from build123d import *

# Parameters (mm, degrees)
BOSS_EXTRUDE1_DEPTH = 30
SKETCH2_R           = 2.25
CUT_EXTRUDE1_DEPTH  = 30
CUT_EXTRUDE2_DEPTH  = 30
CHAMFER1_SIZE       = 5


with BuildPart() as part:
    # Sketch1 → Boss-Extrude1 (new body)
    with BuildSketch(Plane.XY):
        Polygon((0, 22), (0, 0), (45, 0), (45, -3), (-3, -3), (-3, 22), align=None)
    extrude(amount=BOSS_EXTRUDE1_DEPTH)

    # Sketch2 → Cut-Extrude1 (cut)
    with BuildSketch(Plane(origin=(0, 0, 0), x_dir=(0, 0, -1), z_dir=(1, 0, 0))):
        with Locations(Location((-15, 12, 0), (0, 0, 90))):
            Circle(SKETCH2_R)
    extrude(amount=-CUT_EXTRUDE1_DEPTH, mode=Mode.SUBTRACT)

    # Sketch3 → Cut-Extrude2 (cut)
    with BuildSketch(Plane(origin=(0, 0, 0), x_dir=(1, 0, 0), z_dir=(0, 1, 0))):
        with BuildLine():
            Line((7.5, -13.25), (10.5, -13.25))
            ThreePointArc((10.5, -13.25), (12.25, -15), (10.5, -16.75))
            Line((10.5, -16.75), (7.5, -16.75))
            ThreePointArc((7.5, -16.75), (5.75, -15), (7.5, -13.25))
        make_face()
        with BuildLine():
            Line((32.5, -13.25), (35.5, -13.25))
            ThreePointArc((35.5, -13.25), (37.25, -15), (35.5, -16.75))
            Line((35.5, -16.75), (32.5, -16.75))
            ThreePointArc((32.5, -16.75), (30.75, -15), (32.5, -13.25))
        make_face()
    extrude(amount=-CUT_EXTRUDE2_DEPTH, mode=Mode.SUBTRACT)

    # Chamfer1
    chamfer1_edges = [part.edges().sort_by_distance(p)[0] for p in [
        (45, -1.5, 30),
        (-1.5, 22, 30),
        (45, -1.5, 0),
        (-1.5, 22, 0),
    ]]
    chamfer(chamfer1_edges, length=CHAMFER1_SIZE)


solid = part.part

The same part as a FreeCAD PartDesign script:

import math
import FreeCAD as App
import Part
import Sketcher


def edges_at(feature, points):
    """Names of the edges that pass closest to the given points."""
    edges = feature.Shape.Edges
    near = lambda p: min(range(len(edges)), key=lambda i: edges[i].distToShape(Part.Vertex(*p))[0])
    return sorted({f"Edge{near(p) + 1}" for p in points})


def add_polygon(sketch, points):
    """Adds a closed chain of lines whose ends are joined by coincident constraints."""
    first, n = sketch.GeometryCount, len(points)
    for a, b in zip(points, points[1:] + points[:1]):
        sketch.addGeometry(Part.LineSegment(App.Vector(*a, 0), App.Vector(*b, 0)), False)
    for i in range(n):
        sketch.addConstraint(Sketcher.Constraint("Coincident", first + i, 2, first + (i + 1) % n, 1))

doc = App.newDocument("Part")
params = doc.addObject("Spreadsheet::Sheet", "Params")
for row, (alias, value) in enumerate([
    ("sketch1_width", "3 mm"),
    ("sketch1_width2", "48 mm"),
    ("sketch1_height", "22 mm"),
    ("pad1_length", "30 mm"),
    ("sketch2_diameter", "4.5 mm"),
    ("pocket1_length", "30 mm"),
    ("sketch3_width", "3 mm"),
    ("sketch3_radius", "1.75 mm"),
    ("pocket2_length", "30 mm"),
    ("chamfer_size", "5 mm"),
], start=1):
    params.set(f"A{row}", alias)
    params.set(f"B{row}", "=" + value)
    params.setAlias(f"B{row}", alias)

body = doc.addObject("PartDesign::Body", "Body")

sketch1 = body.newObject("Sketcher::SketchObject", "Sketch")
sketch1.AttachmentSupport = (doc.getObject("XY_Plane"), [""])
sketch1.MapMode = "FlatFace"
add_polygon(sketch1, [(0, 0), (0, 22), (-3, 22), (-3, -3), (45, -3), (45, 0)])
sketch1.addConstraint([
    Sketcher.Constraint("Vertical", 0),
    Sketcher.Constraint("Horizontal", 1),
    Sketcher.Constraint("Vertical", 2),
    Sketcher.Constraint("Horizontal", 3),
    Sketcher.Constraint("Vertical", 4),
    Sketcher.Constraint("Horizontal", 5),
    Sketcher.Constraint("Coincident", 5, 2, -1, 1),
    Sketcher.Constraint("Equal", 1, 4),
    Sketcher.Constraint("DistanceX", 1, 2, 1, 1, 3.0),
    Sketcher.Constraint("DistanceX", 3, 1, 3, 2, 48.0),
    Sketcher.Constraint("DistanceY", 0, 1, 0, 2, 22.0),
])
sketch1.setExpression("Constraints[14]", "Params.sketch1_width")
sketch1.setExpression("Constraints[15]", "Params.sketch1_width2")
sketch1.setExpression("Constraints[16]", "Params.sketch1_height")
pad1 = body.newObject("PartDesign::Pad", "Pad")
pad1.Profile = sketch1
pad1.setExpression("Length", "Params.pad1_length")

sketch2 = body.newObject("Sketcher::SketchObject", "Sketch001")
sketch2.AttachmentSupport = (doc.getObject("YZ_Plane"), [""])
sketch2.MapMode = "FlatFace"
sketch2.addGeometry(Part.Circle(App.Vector(12, 15, 0), App.Vector(0, 0, 1), 2.2), False)
sketch2.addConstraint([
    Sketcher.Constraint("Diameter", 0, 4.5),
    Sketcher.Constraint("DistanceX", -1, 1, 0, 3, 12.0),
    Sketcher.Constraint("DistanceY", -1, 1, 0, 3, 15.0),
])
sketch2.setExpression("Constraints[0]", "Params.sketch2_diameter")
pocket1 = body.newObject("PartDesign::Pocket", "Pocket")
pocket1.Profile = sketch2
pocket1.setExpression("Length", "Params.pocket1_length")

sketch3 = body.newObject("Sketcher::SketchObject", "Sketch002")
sketch3.AttachmentSupport = (doc.getObject("XZ_Plane"), [""])
sketch3.MapMode = "FlatFace"
sketch3.addGeometry([
    Part.LineSegment(App.Vector(10.5, 13.2, 0), App.Vector(7.5, 13.2, 0)),
    Part.ArcOfCircle(Part.Circle(App.Vector(7.5, 15, 0), App.Vector(0, 0, 1), 1.8), math.radians(90), math.radians(270)),
    Part.LineSegment(App.Vector(7.5, 16.8, 0), App.Vector(10.5, 16.8, 0)),
    Part.ArcOfCircle(Part.Circle(App.Vector(10.5, 15, 0), App.Vector(0, 0, 1), 1.8), math.radians(-90), math.radians(90)),
    Part.LineSegment(App.Vector(35.5, 13.2, 0), App.Vector(32.5, 13.2, 0)),
    Part.ArcOfCircle(Part.Circle(App.Vector(32.5, 15, 0), App.Vector(0, 0, 1), 1.8), math.radians(90), math.radians(270)),
    Part.LineSegment(App.Vector(32.5, 16.8, 0), App.Vector(35.5, 16.8, 0)),
    Part.ArcOfCircle(Part.Circle(App.Vector(35.5, 15, 0), App.Vector(0, 0, 1), 1.8), math.radians(-90), math.radians(90)),
], False)
sketch3.addConstraint([
    Sketcher.Constraint("Tangent", 0, 2, 1, 2),
    Sketcher.Constraint("Tangent", 1, 1, 2, 1),
    Sketcher.Constraint("Tangent", 2, 2, 3, 2),
    Sketcher.Constraint("Tangent", 3, 1, 0, 1),
    Sketcher.Constraint("Tangent", 4, 2, 5, 2),
    Sketcher.Constraint("Tangent", 5, 1, 6, 1),
    Sketcher.Constraint("Tangent", 6, 2, 7, 2),
    Sketcher.Constraint("Tangent", 7, 1, 4, 1),
    Sketcher.Constraint("Horizontal", 0),
    Sketcher.Constraint("Horizontal", 2),
    Sketcher.Constraint("Horizontal", 4),
    Sketcher.Constraint("Horizontal", 6),
    Sketcher.Constraint("Equal", 3, 5),
    Sketcher.Constraint("Horizontal", 3, 3, 5, 3),
    Sketcher.Constraint("Equal", 2, 4),
    Sketcher.Constraint("DistanceX", 0, 2, 0, 1, 3.0),
    Sketcher.Constraint("Radius", 1, 1.75),
    Sketcher.Constraint("DistanceY", -1, 1, 1, 3, 15.0),
    Sketcher.Constraint("DistanceX", 3, 3, 5, 3, 22.0),
    Sketcher.Constraint("DistanceX", -1, 1, 1, 3, 7.5),
])
sketch3.setExpression("Constraints[15]", "Params.sketch3_width")
sketch3.setExpression("Constraints[16]", "Params.sketch3_radius")
pocket2 = body.newObject("PartDesign::Pocket", "Pocket001")
pocket2.Profile = sketch3
pocket2.setExpression("Length", "Params.pocket2_length")
pocket2.Reversed = True
doc.recompute()

chamfer = body.newObject("PartDesign::Chamfer", "Chamfer")
chamfer.Base = (pocket2, edges_at(pocket2, [
    (45, -1.5, 30),
    (-1.5, 22, 30),
    (45, -1.5, 0),
    (-1.5, 22, 0),
]))
chamfer.setExpression("Size", "Params.chamfer_size")

doc.recompute()
